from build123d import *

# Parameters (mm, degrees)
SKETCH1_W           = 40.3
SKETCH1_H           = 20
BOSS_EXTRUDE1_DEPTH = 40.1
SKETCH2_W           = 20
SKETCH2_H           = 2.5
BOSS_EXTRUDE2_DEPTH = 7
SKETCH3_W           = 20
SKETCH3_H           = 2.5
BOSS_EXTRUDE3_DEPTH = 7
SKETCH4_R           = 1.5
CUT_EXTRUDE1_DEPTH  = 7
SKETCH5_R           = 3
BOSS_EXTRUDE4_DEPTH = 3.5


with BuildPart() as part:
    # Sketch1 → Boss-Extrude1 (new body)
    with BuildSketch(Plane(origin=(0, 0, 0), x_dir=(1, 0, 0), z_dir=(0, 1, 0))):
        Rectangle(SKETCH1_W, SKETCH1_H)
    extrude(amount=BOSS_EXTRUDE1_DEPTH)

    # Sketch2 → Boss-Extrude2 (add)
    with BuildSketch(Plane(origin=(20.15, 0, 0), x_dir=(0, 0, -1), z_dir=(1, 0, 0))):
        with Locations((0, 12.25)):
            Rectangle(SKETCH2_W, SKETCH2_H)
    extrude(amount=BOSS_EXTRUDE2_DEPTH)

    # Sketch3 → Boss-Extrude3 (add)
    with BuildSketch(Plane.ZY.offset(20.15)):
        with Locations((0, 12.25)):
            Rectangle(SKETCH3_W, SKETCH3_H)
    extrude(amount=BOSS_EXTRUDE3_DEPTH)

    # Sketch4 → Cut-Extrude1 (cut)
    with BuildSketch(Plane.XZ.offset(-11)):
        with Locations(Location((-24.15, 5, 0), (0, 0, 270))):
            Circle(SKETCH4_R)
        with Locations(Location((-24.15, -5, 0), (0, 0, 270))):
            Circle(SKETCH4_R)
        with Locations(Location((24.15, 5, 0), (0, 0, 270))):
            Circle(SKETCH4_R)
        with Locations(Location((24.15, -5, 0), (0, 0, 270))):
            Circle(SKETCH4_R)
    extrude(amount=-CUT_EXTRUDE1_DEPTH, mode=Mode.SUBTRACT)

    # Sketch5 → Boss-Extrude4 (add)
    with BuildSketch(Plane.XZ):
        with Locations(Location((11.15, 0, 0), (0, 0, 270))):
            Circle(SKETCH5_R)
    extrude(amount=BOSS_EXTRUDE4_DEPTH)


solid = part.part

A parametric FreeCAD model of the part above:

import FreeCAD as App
import Part
import Sketcher

V = App.Vector

doc = App.newDocument("Part")
params = doc.addObject("Spreadsheet::Sheet", "Params")
for row, (alias, value) in enumerate([
    ("sketch1_height", "20 mm"),
    ("sketch1_width", "40.3 mm"),
    ("pad1_length", "40.1 mm"),
    ("sketch2_height", "20 mm"),
    ("sketch2_width", "2.5 mm"),
    ("pad2_length", "7 mm"),
    ("sketch3_height", "20 mm"),
    ("sketch3_width", "2.5 mm"),
    ("pad3_length", "7 mm"),
    ("sketch4_diameter", "3 mm"),
    ("pocket1_length", "7 mm"),
    ("sketch5_diameter", "6 mm"),
    ("pad4_length", "3.5 mm"),
], start=1):
    params.set(f"A{row}", alias)
    params.set(f"B{row}", "=" + value)
    params.setAlias(f"B{row}", alias)

body = doc.addObject("PartDesign::Body", "Body")

sketch1 = doc.addObject("Sketcher::SketchObject", "Sketch")
body.addObject(sketch1)
sketch1.AttachmentSupport = (doc.XZ_Plane, [""])
sketch1.MapMode = "FlatFace"
sketch1.addGeometry(Part.LineSegment(V(-20, -10, 0), V(-20, 10, 0)), False)
sketch1.addGeometry(Part.LineSegment(V(-20, 10, 0), V(20, 10, 0)), False)
sketch1.addGeometry(Part.LineSegment(V(20, 10, 0), V(20, -10, 0)), False)
sketch1.addGeometry(Part.LineSegment(V(20, -10, 0), V(-20, -10, 0)), False)
sketch1.addConstraint(Sketcher.Constraint("Coincident", 0, 2, 1, 1))
sketch1.addConstraint(Sketcher.Constraint("Coincident", 1, 2, 2, 1))
sketch1.addConstraint(Sketcher.Constraint("Coincident", 2, 2, 3, 1))
sketch1.addConstraint(Sketcher.Constraint("Coincident", 3, 2, 0, 1))
sketch1.addConstraint(Sketcher.Constraint("Vertical", 0))
sketch1.addConstraint(Sketcher.Constraint("Horizontal", 1))
sketch1.addConstraint(Sketcher.Constraint("Vertical", 2))
sketch1.addConstraint(Sketcher.Constraint("Horizontal", 3))
sketch1.addConstraint(Sketcher.Constraint("Symmetric", 0, 2, 2, 2, -1, 1))
sketch1.addConstraint(Sketcher.Constraint("DistanceY", 0, 1, 0, 2, 20.0))
sketch1.addConstraint(Sketcher.Constraint("DistanceX", 1, 1, 1, 2, 40.3))
sketch1.setExpression("Constraints[9]", "Params.sketch1_height")
sketch1.setExpression("Constraints[10]", "Params.sketch1_width")
pad1 = doc.addObject("PartDesign::Pad", "Pad")
body.addObject(pad1)
pad1.Profile = sketch1
pad1.setExpression("Length", "Params.pad1_length")
pad1.Reversed = True

sketch2 = doc.addObject("Sketcher::SketchObject", "Sketch001")
body.addObject(sketch2)
sketch2.AttachmentSupport = (doc.YZ_Plane, [""])
sketch2.MapMode = "FlatFace"
sketch2.AttachmentOffset = App.Placement(V(0, 0, 20.15), App.Rotation())
sketch2.addGeometry(Part.LineSegment(V(13.5, 10, 0), V(11, 10, 0)), False)
sketch2.addGeometry(Part.LineSegment(V(11, 10, 0), V(11, -10, 0)), False)
sketch2.addGeometry(Part.LineSegment(V(11, -10, 0), V(13.5, -10, 0)), False)
sketch2.addGeometry(Part.LineSegment(V(13.5, -10, 0), V(13.5, 10, 0)), False)
sketch2.addConstraint(Sketcher.Constraint("Coincident", 0, 2, 1, 1))
sketch2.addConstraint(Sketcher.Constraint("Coincident", 1, 2, 2, 1))
sketch2.addConstraint(Sketcher.Constraint("Coincident", 2, 2, 3, 1))
sketch2.addConstraint(Sketcher.Constraint("Coincident", 3, 2, 0, 1))
sketch2.addConstraint(Sketcher.Constraint("Horizontal", 0))
sketch2.addConstraint(Sketcher.Constraint("Vertical", 1))
sketch2.addConstraint(Sketcher.Constraint("Horizontal", 2))
sketch2.addConstraint(Sketcher.Constraint("Vertical", 3))
sketch2.addConstraint(Sketcher.Constraint("DistanceY", 1, 2, 1, 1, 20.0))
sketch2.addConstraint(Sketcher.Constraint("DistanceX", 0, 2, 0, 1, 2.5))
sketch2.addConstraint(Sketcher.Constraint("DistanceX", -1, 1, 0, 2, 11.0))
sketch2.addConstraint(Sketcher.Constraint("DistanceY", -1, 1, 0, 2, 10.0))
sketch2.setExpression("Constraints[8]", "Params.sketch2_height")
sketch2.setExpression("Constraints[9]", "Params.sketch2_width")
pad2 = doc.addObject("PartDesign::Pad", "Pad001")
body.addObject(pad2)
pad2.Profile = sketch2
pad2.setExpression("Length", "Params.pad2_length")

sketch3 = doc.addObject("Sketcher::SketchObject", "Sketch002")
body.addObject(sketch3)
sketch3.AttachmentSupport = (doc.YZ_Plane, [""])
sketch3.MapMode = "FlatFace"
sketch3.AttachmentOffset = App.Placement(V(0, 0, -20.15), App.Rotation())
sketch3.addGeometry(Part.LineSegment(V(13.5, -10, 0), V(11, -10, 0)), False)
sketch3.addGeometry(Part.LineSegment(V(11, -10, 0), V(11, 10, 0)), False)
sketch3.addGeometry(Part.LineSegment(V(11, 10, 0), V(13.5, 10, 0)), False)
sketch3.addGeometry(Part.LineSegment(V(13.5, 10, 0), V(13.5, -10, 0)), False)
sketch3.addConstraint(Sketcher.Constraint("Coincident", 0, 2, 1, 1))
sketch3.addConstraint(Sketcher.Constraint("Coincident", 1, 2, 2, 1))
sketch3.addConstraint(Sketcher.Constraint("Coincident", 2, 2, 3, 1))
sketch3.addConstraint(Sketcher.Constraint("Coincident", 3, 2, 0, 1))
sketch3.addConstraint(Sketcher.Constraint("Horizontal", 0))
sketch3.addConstraint(Sketcher.Constraint("Vertical", 1))
sketch3.addConstraint(Sketcher.Constraint("Horizontal", 2))
sketch3.addConstraint(Sketcher.Constraint("Vertical", 3))
sketch3.addConstraint(Sketcher.Constraint("DistanceY", 1, 1, 1, 2, 20.0))
sketch3.addConstraint(Sketcher.Constraint("DistanceX", 0, 2, 0, 1, 2.5))
sketch3.addConstraint(Sketcher.Constraint("DistanceX", -1, 1, 0, 2, 11.0))
sketch3.addConstraint(Sketcher.Constraint("DistanceY", 0, 2, -1, 1, 10.0))
sketch3.setExpression("Constraints[8]", "Params.sketch3_height")
sketch3.setExpression("Constraints[9]", "Params.sketch3_width")
pad3 = doc.addObject("PartDesign::Pad", "Pad002")
body.addObject(pad3)
pad3.Profile = sketch3
pad3.setExpression("Length", "Params.pad3_length")
pad3.Reversed = True

sketch4 = doc.addObject("Sketcher::SketchObject", "Sketch003")
body.addObject(sketch4)
sketch4.AttachmentSupport = (doc.XZ_Plane, [""])
sketch4.MapMode = "FlatFace"
sketch4.AttachmentOffset = App.Placement(V(0, 0, -11), App.Rotation())
sketch4.addGeometry(Part.Circle(V(-24.1, 5, 0), V(0, 0, 1), 1.5), False)
sketch4.addGeometry(Part.Circle(V(-24.1, -5, 0), V(0, 0, 1), 1.5), False)
sketch4.addGeometry(Part.Circle(V(24.1, 5, 0), V(0, 0, 1), 1.5), False)
sketch4.addGeometry(Part.Circle(V(24.1, -5, 0), V(0, 0, 1), 1.5), False)
sketch4.addConstraint(Sketcher.Constraint("Equal", 0, 1))
sketch4.addConstraint(Sketcher.Constraint("Equal", 1, 2))
sketch4.addConstraint(Sketcher.Constraint("Equal", 2, 3))
sketch4.addConstraint(Sketcher.Constraint("Symmetric", 1, 3, 2, 3, -1, 1))
sketch4.addConstraint(Sketcher.Constraint("Symmetric", 0, 3, 3, 3, -1, 1))
sketch4.addConstraint(Sketcher.Constraint("Symmetric", 0, 3, 2, 3, -2))
sketch4.addConstraint(Sketcher.Constraint("Diameter", 0, 3.0))
sketch4.addConstraint(Sketcher.Constraint("DistanceY", -1, 1, 0, 3, 5.0))
sketch4.addConstraint(Sketcher.Constraint("DistanceX", 0, 3, 2, 3, 48.3))
sketch4.setExpression("Constraints[6]", "Params.sketch4_diameter")
pocket1 = doc.addObject("PartDesign::Pocket", "Pocket")
body.addObject(pocket1)
pocket1.Profile = sketch4
pocket1.setExpression("Length", "Params.pocket1_length")

sketch5 = doc.addObject("Sketcher::SketchObject", "Sketch004")
body.addObject(sketch5)
sketch5.AttachmentSupport = (doc.XZ_Plane, [""])
sketch5.MapMode = "FlatFace"
sketch5.addGeometry(Part.Circle(V(11.2, 0, 0), V(0, 0, 1), 3), False)
sketch5.addConstraint(Sketcher.Constraint("PointOnObject", 0, 3, -1))
sketch5.addConstraint(Sketcher.Constraint("Diameter", 0, 6.0))
sketch5.addConstraint(Sketcher.Constraint("DistanceX", -1, 1, 0, 3, 11.15))
sketch5.setExpression("Constraints[1]", "Params.sketch5_diameter")
pad4 = doc.addObject("PartDesign::Pad", "Pad003")
body.addObject(pad4)
pad4.Profile = sketch5
pad4.setExpression("Length", "Params.pad4_length")

doc.recompute()
